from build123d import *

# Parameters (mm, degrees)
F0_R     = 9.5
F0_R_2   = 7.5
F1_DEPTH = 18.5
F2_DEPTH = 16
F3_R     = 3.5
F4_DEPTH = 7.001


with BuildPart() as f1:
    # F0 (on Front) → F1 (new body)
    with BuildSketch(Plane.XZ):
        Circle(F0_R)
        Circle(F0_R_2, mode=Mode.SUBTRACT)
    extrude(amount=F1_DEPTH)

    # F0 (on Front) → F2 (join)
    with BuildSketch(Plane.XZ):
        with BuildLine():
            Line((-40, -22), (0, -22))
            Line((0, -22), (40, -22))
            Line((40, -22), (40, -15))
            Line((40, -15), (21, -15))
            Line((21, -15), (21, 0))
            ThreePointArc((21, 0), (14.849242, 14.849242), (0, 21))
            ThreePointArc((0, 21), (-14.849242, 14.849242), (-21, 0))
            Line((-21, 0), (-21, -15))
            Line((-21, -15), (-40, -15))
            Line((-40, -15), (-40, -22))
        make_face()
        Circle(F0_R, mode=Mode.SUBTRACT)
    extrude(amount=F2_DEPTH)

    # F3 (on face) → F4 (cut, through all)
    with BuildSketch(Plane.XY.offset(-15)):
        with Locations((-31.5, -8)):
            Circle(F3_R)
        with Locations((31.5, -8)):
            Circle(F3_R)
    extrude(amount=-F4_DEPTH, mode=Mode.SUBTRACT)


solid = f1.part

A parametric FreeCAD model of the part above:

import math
import FreeCAD as App
import Part
import Sketcher
from FreeCAD import Vector
Q = App.Units.Quantity

doc = App.newDocument("Part")
body = doc.addObject("PartDesign::Body", "Body")

# Sketch on XZ plane
sketch1 = body.newObject("Sketcher::SketchObject", "Sketch")
sketch1.AttachmentSupport = (doc.getObject("XZ_Plane"), [""])
sketch1.MapMode = "FlatFace"
sketch1.addGeometry(Part.Circle(Vector(0, 0, 0), Vector(0, 0, 1), 9.5), False)
sketch1.addGeometry(Part.Circle(Vector(0, 0, 0), Vector(0, 0, 1), 7.5), False)
sketch1.addConstraint(Sketcher.Constraint("Coincident", 0, 3, -1, 1))
sketch1.addConstraint(Sketcher.Constraint("Coincident", 1, 3, -1, 1))
sketch1.addConstraint(Sketcher.Constraint("Diameter", 0, Q("19 mm")))
sketch1.addConstraint(Sketcher.Constraint("Diameter", 1, Q("15 mm")))
pad1 = body.newObject("PartDesign::Pad", "Pad")
pad1.Profile = sketch1
pad1.Length = 18.5

# Sketch on XZ plane
sketch2 = body.newObject("Sketcher::SketchObject", "Sketch001")
sketch2.AttachmentSupport = (doc.getObject("XZ_Plane"), [""])
sketch2.MapMode = "FlatFace"
sketch2.addGeometry(Part.LineSegment(Vector(-40, -22, 0), Vector(40, -22, 0)), False)
sketch2.addGeometry(Part.LineSegment(Vector(40, -22, 0), Vector(40, -15, 0)), False)
sketch2.addGeometry(Part.LineSegment(Vector(40, -15, 0), Vector(21, -15, 0)), False)
sketch2.addGeometry(Part.LineSegment(Vector(21, -15, 0), Vector(21, 0, 0)), False)
sketch2.addGeometry(Part.ArcOfCircle(Part.Circle(Vector(-0.000001, -0.000001, 0), Vector(0, 0, 1), 21.000001), math.radians(0.000004), math.radians(89.999996)), False)
sketch2.addGeometry(Part.ArcOfCircle(Part.Circle(Vector(0.000001, -0.000001, 0), Vector(0, 0, 1), 21.000001), math.radians(90.000004), math.radians(179.999996)), False)
sketch2.addGeometry(Part.LineSegment(Vector(-21, 0, 0), Vector(-21, -15, 0)), False)
sketch2.addGeometry(Part.LineSegment(Vector(-21, -15, 0), Vector(-40, -15, 0)), False)
sketch2.addGeometry(Part.LineSegment(Vector(-40, -15, 0), Vector(-40, -22, 0)), False)
sketch2.addGeometry(Part.Circle(Vector(0, 0, 0), Vector(0, 0, 1), 9.5), False)
sketch2.addConstraint(Sketcher.Constraint("Coincident", 0, 2, 1, 1))
sketch2.addConstraint(Sketcher.Constraint("Coincident", 1, 2, 2, 1))
sketch2.addConstraint(Sketcher.Constraint("Coincident", 2, 2, 3, 1))
sketch2.addConstraint(Sketcher.Constraint("Tangent", 3, 2, 4, 1))
sketch2.addConstraint(Sketcher.Constraint("Tangent", 4, 2, 5, 1))
sketch2.addConstraint(Sketcher.Constraint("Tangent", 5, 2, 6, 1))
sketch2.addConstraint(Sketcher.Constraint("Coincident", 6, 2, 7, 1))
sketch2.addConstraint(Sketcher.Constraint("Coincident", 7, 2, 8, 1))
sketch2.addConstraint(Sketcher.Constraint("Coincident", 8, 2, 0, 1))
sketch2.addConstraint(Sketcher.Constraint("Horizontal", 0))
sketch2.addConstraint(Sketcher.Constraint("Vertical", 1))
sketch2.addConstraint(Sketcher.Constraint("Horizontal", 2))
sketch2.addConstraint(Sketcher.Constraint("Vertical", 3))
sketch2.addConstraint(Sketcher.Constraint("Vertical", 6))
sketch2.addConstraint(Sketcher.Constraint("Horizontal", 7))
sketch2.addConstraint(Sketcher.Constraint("Vertical", 8))
sketch2.addConstraint(Sketcher.Constraint("Coincident", 4, 3, -1, 1))
sketch2.addConstraint(Sketcher.Constraint("Coincident", 9, 3, -1, 1))
sketch2.addConstraint(Sketcher.Constraint("Equal", 4, 5))
sketch2.addConstraint(Sketcher.Constraint("Symmetric", 1, 2, 7, 2, -2))
sketch2.addConstraint(Sketcher.Constraint("PointOnObject", 4, 2, -2))
sketch2.addConstraint(Sketcher.Constraint("Diameter", 9, Q("19 mm")))
sketch2.addConstraint(Sketcher.Constraint("Radius", 4, Q("21.000001 mm")))
sketch2.addConstraint(Sketcher.Constraint("DistanceX", 0, 1, 0, 2, Q("80 mm")))
sketch2.addConstraint(Sketcher.Constraint("DistanceY", 1, 1, 1, 2, Q("7 mm")))
sketch2.addConstraint(Sketcher.Constraint("DistanceY", 3, 1, 3, 2, Q("15 mm")))
pad2 = body.newObject("PartDesign::Pad", "Pad001")
pad2.Profile = sketch2
pad2.Length = 16

# Sketch on XY plane
sketch3 = body.newObject("Sketcher::SketchObject", "Sketch002")
sketch3.AttachmentSupport = (doc.getObject("XY_Plane"), [""])
sketch3.MapMode = "FlatFace"
sketch3.AttachmentOffset = App.Placement(Vector(0, 0, -15), App.Rotation())
sketch3.addGeometry(Part.Circle(Vector(-31.5, -8, 0), Vector(0, 0, 1), 3.5), False)
sketch3.addGeometry(Part.Circle(Vector(31.5, -8, 0), Vector(0, 0, 1), 3.5), False)
sketch3.addConstraint(Sketcher.Constraint("Equal", 0, 1))
sketch3.addConstraint(Sketcher.Constraint("Symmetric", 0, 3, 1, 3, -2))
sketch3.addConstraint(Sketcher.Constraint("Diameter", 0, Q("7 mm")))
sketch3.addConstraint(Sketcher.Constraint("DistanceY", 0, 3, -1, 1, Q("8 mm")))
sketch3.addConstraint(Sketcher.Constraint("DistanceX", 0, 3, 1, 3, Q("63 mm")))
pocket1 = body.newObject("PartDesign::Pocket", "Pocket")
pocket1.Profile = sketch3
pocket1.Type = "ThroughAll"

doc.recompute()
